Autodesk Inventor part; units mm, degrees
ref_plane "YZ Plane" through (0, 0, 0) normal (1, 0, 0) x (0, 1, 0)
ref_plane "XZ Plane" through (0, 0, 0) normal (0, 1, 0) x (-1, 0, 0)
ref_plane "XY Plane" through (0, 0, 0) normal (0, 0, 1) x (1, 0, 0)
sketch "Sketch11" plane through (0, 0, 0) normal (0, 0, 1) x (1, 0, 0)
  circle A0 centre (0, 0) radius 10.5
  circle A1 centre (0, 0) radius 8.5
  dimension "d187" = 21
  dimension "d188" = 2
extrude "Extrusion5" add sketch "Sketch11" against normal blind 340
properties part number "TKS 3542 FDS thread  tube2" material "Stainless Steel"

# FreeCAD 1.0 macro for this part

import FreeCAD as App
import Part
import Sketcher
from FreeCAD import Vector

doc = App.newDocument("Part")
params = doc.addObject("Spreadsheet::Sheet", "Params")
for row, (alias, value) in enumerate([
    ("sketch1_diameter", "21 mm"),
    ("sketch1_diameter2", "17 mm"),
    ("pad1_length", "340 mm"),
], start=1):
    params.set(f"A{row}", alias)
    params.set(f"B{row}", "=" + value)
    params.setAlias(f"B{row}", alias)

body = doc.addObject("PartDesign::Body", "Body")

# Sketch on XY plane
sketch1 = body.newObject("Sketcher::SketchObject", "Sketch")
sketch1.AttachmentSupport = (doc.getObject("XY_Plane"), [""])
sketch1.MapMode = "FlatFace"
sketch1.addGeometry(Part.Circle(Vector(0, 0, 0), Vector(0, 0, 1), 10.5), False)
sketch1.addGeometry(Part.Circle(Vector(0, 0, 0), Vector(0, 0, 1), 8.5), False)
sketch1.addConstraint(Sketcher.Constraint("Coincident", 0, 3, -1, 1))
sketch1.addConstraint(Sketcher.Constraint("Coincident", 1, 3, -1, 1))
sketch1.addConstraint(Sketcher.Constraint("Diameter", 0, 21.0))
sketch1.addConstraint(Sketcher.Constraint("Diameter", 1, 17.0))
sketch1.setExpression("Constraints[2]", "Params.sketch1_diameter")
sketch1.setExpression("Constraints[3]", "Params.sketch1_diameter2")
pad1 = body.newObject("PartDesign::Pad", "Pad")
pad1.Profile = sketch1
pad1.setExpression("Length", "Params.pad1_length")
pad1.Reversed = True

doc.recompute()
